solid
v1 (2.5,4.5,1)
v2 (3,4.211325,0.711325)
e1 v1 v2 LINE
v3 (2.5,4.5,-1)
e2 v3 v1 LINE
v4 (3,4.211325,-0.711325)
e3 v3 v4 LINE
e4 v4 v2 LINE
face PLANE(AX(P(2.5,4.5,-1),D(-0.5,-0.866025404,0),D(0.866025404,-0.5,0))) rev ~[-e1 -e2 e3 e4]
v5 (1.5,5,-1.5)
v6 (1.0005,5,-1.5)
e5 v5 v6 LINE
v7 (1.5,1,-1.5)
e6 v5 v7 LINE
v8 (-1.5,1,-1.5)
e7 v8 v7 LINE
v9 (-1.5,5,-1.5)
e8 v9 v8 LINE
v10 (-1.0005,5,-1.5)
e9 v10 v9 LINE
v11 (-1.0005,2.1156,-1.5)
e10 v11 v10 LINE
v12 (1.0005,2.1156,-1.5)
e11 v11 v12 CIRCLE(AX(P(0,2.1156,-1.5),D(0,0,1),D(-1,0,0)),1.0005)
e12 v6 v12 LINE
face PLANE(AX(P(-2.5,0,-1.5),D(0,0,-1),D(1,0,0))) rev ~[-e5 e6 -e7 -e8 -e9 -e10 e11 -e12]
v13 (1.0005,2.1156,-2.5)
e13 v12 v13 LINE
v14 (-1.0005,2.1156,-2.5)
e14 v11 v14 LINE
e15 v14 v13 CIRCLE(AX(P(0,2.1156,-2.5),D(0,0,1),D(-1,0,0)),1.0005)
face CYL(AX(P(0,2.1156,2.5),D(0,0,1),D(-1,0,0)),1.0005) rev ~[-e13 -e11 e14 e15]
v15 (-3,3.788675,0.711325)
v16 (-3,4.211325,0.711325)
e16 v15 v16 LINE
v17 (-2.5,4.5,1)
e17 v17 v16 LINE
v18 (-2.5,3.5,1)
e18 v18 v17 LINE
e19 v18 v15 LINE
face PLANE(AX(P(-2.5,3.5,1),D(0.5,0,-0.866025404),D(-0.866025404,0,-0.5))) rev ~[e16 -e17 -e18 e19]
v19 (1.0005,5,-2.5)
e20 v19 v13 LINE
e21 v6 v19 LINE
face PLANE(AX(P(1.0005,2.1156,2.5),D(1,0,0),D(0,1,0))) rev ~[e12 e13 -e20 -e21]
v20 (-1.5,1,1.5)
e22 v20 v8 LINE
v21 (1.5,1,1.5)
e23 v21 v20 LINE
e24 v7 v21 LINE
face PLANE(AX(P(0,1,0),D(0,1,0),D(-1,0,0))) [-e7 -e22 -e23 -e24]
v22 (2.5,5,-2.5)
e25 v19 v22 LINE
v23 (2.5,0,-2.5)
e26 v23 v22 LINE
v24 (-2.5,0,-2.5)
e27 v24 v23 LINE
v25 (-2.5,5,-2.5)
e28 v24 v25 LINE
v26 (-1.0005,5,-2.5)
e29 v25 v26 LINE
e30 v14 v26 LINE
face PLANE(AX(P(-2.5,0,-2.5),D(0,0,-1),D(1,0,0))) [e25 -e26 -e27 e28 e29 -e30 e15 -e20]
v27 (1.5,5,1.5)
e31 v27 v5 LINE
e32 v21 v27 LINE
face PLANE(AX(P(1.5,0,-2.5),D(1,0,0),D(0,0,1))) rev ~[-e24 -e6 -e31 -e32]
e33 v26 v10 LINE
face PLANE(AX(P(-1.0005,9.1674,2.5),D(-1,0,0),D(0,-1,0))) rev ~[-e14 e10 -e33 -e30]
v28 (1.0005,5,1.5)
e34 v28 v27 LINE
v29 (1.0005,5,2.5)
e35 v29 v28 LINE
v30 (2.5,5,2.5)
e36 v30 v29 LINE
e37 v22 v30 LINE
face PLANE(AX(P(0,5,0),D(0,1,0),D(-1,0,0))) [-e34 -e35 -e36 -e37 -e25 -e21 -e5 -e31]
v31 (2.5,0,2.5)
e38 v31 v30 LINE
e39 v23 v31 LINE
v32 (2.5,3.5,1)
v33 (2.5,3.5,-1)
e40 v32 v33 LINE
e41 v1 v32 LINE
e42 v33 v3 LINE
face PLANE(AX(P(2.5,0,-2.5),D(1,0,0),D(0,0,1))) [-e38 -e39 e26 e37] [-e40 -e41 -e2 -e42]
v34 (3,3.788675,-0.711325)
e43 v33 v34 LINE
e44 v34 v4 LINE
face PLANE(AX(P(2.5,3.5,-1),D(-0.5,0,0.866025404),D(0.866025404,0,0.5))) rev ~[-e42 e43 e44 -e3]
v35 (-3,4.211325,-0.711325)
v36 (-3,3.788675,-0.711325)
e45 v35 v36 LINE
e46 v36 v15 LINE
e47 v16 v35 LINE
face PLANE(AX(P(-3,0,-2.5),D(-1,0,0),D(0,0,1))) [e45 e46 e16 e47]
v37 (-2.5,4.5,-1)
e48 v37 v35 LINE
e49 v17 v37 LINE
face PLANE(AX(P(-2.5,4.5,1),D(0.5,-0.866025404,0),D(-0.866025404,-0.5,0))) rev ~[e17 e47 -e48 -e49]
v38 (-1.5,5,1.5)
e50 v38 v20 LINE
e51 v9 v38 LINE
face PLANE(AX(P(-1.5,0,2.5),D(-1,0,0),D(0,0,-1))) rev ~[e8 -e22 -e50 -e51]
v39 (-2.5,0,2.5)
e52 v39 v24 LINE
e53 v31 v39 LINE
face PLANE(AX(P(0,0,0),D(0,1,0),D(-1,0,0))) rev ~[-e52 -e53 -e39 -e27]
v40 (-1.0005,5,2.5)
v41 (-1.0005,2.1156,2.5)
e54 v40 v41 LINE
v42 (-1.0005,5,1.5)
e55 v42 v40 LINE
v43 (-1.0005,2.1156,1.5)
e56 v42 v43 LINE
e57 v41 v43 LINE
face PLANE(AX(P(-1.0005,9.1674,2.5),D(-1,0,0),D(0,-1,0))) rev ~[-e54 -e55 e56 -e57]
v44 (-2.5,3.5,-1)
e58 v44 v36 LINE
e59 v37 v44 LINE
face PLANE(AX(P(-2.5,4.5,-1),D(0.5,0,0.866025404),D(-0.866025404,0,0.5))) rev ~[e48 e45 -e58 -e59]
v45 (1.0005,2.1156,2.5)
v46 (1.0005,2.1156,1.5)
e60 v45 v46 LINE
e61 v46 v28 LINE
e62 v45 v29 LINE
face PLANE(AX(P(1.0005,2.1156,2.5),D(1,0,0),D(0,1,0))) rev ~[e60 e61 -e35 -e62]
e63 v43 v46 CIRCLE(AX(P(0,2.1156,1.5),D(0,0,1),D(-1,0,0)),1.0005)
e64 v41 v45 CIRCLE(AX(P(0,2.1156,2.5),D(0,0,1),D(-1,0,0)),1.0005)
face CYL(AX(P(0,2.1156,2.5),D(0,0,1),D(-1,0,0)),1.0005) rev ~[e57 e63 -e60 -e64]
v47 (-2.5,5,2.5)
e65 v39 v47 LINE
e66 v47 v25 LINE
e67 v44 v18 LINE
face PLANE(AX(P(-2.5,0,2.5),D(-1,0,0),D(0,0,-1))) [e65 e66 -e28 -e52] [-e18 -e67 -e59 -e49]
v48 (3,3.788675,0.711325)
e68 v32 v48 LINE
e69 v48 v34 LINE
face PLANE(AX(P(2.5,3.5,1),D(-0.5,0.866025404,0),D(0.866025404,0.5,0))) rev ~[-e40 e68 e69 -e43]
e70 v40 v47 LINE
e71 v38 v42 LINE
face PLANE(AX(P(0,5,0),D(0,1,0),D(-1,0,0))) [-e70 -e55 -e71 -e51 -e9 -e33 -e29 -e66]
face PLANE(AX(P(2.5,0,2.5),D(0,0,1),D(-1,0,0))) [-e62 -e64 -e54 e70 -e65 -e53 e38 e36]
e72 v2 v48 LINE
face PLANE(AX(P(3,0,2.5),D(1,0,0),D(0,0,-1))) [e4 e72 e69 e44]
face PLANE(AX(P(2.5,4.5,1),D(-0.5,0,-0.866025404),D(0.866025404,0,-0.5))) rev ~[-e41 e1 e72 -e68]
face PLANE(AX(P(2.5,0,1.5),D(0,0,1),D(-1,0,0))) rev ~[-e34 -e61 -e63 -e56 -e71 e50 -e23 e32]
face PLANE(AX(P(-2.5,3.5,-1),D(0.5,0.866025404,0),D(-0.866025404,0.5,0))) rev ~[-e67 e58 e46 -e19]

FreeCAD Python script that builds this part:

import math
import FreeCAD as App
import Part
import Sketcher
Q = App.Units.Quantity


def faces_at(feature, points):
    """Names of the faces that lie closest to the given points."""
    faces = feature.Shape.Faces
    near = lambda p: min(range(len(faces)), key=lambda i: faces[i].distToShape(Part.Vertex(*p))[0])
    return sorted({f"Face{near(p) + 1}" for p in points})


def add_polygon(sketch, points):
    """Adds a closed chain of lines whose ends are joined by coincident constraints."""
    first, n = sketch.GeometryCount, len(points)
    for a, b in zip(points, points[1:] + points[:1]):
        sketch.addGeometry(Part.LineSegment(App.Vector(*a, 0), App.Vector(*b, 0)), False)
    for i in range(n):
        sketch.addConstraint(Sketcher.Constraint("Coincident", first + i, 2, first + (i + 1) % n, 1))

doc = App.newDocument("Part")
body = doc.addObject("PartDesign::Body", "Body")

sketch1 = doc.addObject("Sketcher::SketchObject", "Sketch")
body.addObject(sketch1)
sketch1.AttachmentSupport = (doc.XZ_Plane, [""])
sketch1.MapMode = "FlatFace"
add_polygon(sketch1, [(-2, 2), (2, 2), (2, -2), (-2, -2)])
sketch1.addConstraint([
    Sketcher.Constraint("Horizontal", 0),
    Sketcher.Constraint("Vertical", 1),
    Sketcher.Constraint("Horizontal", 2),
    Sketcher.Constraint("Vertical", 3),
    Sketcher.Constraint("Symmetric", 0, 2, 2, 2, -1, 1),
    Sketcher.Constraint("Equal", 2, 1),
    Sketcher.Constraint("DistanceX", 0, 1, 0, 2, Q("5 mm")),
])
pad1 = doc.addObject("PartDesign::Pad", "Pad")
body.addObject(pad1)
pad1.Profile = sketch1
pad1.Length = 5
pad1.Reversed = True
doc.recompute()

thickness = doc.addObject("PartDesign::Thickness", "Thickness")
body.addObject(thickness)
thickness.Base = (pad1, faces_at(pad1, [(-0.833, 5, -0.833)]))
thickness.Value = 1
thickness.Reversed = True
thickness.Join = "Intersection"

sketch2 = doc.addObject("Sketcher::SketchObject", "Sketch001")
body.addObject(sketch2)
sketch2.AttachmentSupport = (doc.XY_Plane, [""])
sketch2.MapMode = "FlatFace"
sketch2.AttachmentOffset = App.Placement(App.Vector(0, 0, 2.5), App.Rotation())
sketch2.addGeometry([
    Part.ArcOfCircle(Part.Circle(App.Vector(0, 9.2, 0), App.Vector(0, 0, 1), 1), math.radians(0), math.radians(180)),
    Part.LineSegment(App.Vector(-1, 9.2, 0), App.Vector(-1, 2.1, 0)),
    Part.ArcOfCircle(Part.Circle(App.Vector(0, 2.1, 0), App.Vector(0, 0, 1), 1), math.radians(180), math.radians(360)),
    Part.LineSegment(App.Vector(1, 2.1, 0), App.Vector(1, 9.2, 0)),
], False)
sketch2.addConstraint([
    Sketcher.Constraint("Tangent", 0, 2, 1, 1),
    Sketcher.Constraint("Tangent", 1, 2, 2, 1),
    Sketcher.Constraint("Tangent", 2, 2, 3, 1),
    Sketcher.Constraint("Tangent", 3, 2, 0, 1),
    Sketcher.Constraint("Vertical", 1),
    Sketcher.Constraint("Vertical", 3),
    Sketcher.Constraint("PointOnObject", 0, 3, -2),
    Sketcher.Constraint("Radius", 0, Q("1.0005 mm")),
    Sketcher.Constraint("DistanceY", 1, 2, 1, 1, Q("7.0518 mm")),
    Sketcher.Constraint("DistanceY", -1, 1, 0, 3, Q("9.1674 mm")),
])
pocket1 = doc.addObject("PartDesign::Pocket", "Pocket")
body.addObject(pocket1)
pocket1.Profile = sketch2
pocket1.Type = "ThroughAll"

sketch3 = doc.addObject("Sketcher::SketchObject", "Sketch002")
body.addObject(sketch3)
sketch3.AttachmentSupport = (doc.YZ_Plane, [""])
sketch3.MapMode = "FlatFace"
sketch3.AttachmentOffset = App.Placement(App.Vector(0, 0, 2.5), App.Rotation())
add_polygon(sketch3, [(4.5, 1), (3.5, 1), (3.5, -1), (4.5, -1)])
sketch3.addConstraint([
    Sketcher.Constraint("Horizontal", 0),
    Sketcher.Constraint("Vertical", 1),
    Sketcher.Constraint("Horizontal", 2),
    Sketcher.Constraint("Vertical", 3),
    Sketcher.Constraint("DistanceX", 0, 2, 0, 1, Q("1 mm")),
    Sketcher.Constraint("DistanceY", 1, 2, 1, 1, Q("2 mm")),
    Sketcher.Constraint("DistanceY", -1, 1, 0, 2, Q("1 mm")),
    Sketcher.Constraint("DistanceX", -1, 1, 0, 2, Q("3.5 mm")),
])
pad2 = doc.addObject("PartDesign::Pad", "Pad001")
body.addObject(pad2)
pad2.Profile = sketch3
pad2.Length = 0.5
pad2.TaperAngle = -30

sketch4 = doc.addObject("Sketcher::SketchObject", "Sketch003")
body.addObject(sketch4)
sketch4.AttachmentSupport = (doc.YZ_Plane, [""])
sketch4.MapMode = "FlatFace"
sketch4.AttachmentOffset = App.Placement(App.Vector(0, 0, -2.5), App.Rotation())
add_polygon(sketch4, [(4.5, -1), (3.5, -1), (3.5, 1), (4.5, 1)])
sketch4.addConstraint([
    Sketcher.Constraint("Horizontal", 0),
    Sketcher.Constraint("Vertical", 1),
    Sketcher.Constraint("Horizontal", 2),
    Sketcher.Constraint("Vertical", 3),
    Sketcher.Constraint("DistanceX", 0, 2, 0, 1, Q("1 mm")),
    Sketcher.Constraint("DistanceY", 1, 1, 1, 2, Q("2 mm")),
    Sketcher.Constraint("DistanceY", 0, 2, -1, 1, Q("1 mm")),
    Sketcher.Constraint("DistanceX", -1, 1, 0, 2, Q("3.5 mm")),
])
pad3 = doc.addObject("PartDesign::Pad", "Pad002")
body.addObject(pad3)
pad3.Profile = sketch4
pad3.Length = 0.5
pad3.Reversed = True
pad3.TaperAngle = -30

doc.recompute()
